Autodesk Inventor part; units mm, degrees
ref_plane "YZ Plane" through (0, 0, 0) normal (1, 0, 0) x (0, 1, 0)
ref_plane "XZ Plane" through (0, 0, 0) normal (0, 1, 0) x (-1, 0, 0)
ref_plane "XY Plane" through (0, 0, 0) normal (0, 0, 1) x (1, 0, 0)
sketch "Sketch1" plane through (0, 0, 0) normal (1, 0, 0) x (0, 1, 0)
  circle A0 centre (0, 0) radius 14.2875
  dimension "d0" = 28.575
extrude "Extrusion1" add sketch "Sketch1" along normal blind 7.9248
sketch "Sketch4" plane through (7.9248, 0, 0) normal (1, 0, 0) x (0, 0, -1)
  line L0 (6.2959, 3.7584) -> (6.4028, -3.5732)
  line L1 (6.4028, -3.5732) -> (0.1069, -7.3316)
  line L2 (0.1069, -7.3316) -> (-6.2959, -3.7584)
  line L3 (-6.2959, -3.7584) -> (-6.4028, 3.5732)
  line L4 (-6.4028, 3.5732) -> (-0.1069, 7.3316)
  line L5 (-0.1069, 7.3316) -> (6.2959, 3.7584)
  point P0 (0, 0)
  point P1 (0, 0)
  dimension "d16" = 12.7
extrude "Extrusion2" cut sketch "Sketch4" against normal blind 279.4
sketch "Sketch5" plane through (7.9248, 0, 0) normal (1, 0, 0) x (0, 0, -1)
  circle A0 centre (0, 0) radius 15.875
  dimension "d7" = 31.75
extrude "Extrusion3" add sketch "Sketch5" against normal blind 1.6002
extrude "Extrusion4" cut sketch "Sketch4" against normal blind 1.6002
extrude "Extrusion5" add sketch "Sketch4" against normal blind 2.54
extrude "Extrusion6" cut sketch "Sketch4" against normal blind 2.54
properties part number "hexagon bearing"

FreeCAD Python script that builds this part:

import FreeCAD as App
import Part
import Sketcher

V = App.Vector
Q = App.Units.Quantity


def add_polygon(sketch, points):
    """Adds a closed chain of lines whose ends are joined by coincident constraints."""
    first, n = sketch.GeometryCount, len(points)
    for a, b in zip(points, points[1:] + points[:1]):
        sketch.addGeometry(Part.LineSegment(App.Vector(*a, 0), App.Vector(*b, 0)), False)
    for i in range(n):
        sketch.addConstraint(Sketcher.Constraint("Coincident", first + i, 2, first + (i + 1) % n, 1))

doc = App.newDocument("Part")
body = doc.addObject("PartDesign::Body", "Body")

sketch1 = body.newObject("Sketcher::SketchObject", "Sketch")
sketch1.AttachmentSupport = (doc.getObject("YZ_Plane"), [""])
sketch1.MapMode = "FlatFace"
sketch1.addGeometry(Part.Circle(V(0, 0, 0), V(0, 0, 1), 14.2875), False)
sketch1.addConstraint([
    Sketcher.Constraint("Coincident", 0, 3, -1, 1),
    Sketcher.Constraint("Diameter", 0, Q("1.125 in")),
])
pad1 = body.newObject("PartDesign::Pad", "Pad")
pad1.Profile = sketch1
pad1.Length = Q("0.312 in")

sketch2 = body.newObject("Sketcher::SketchObject", "Sketch001")
sketch2.AttachmentSupport = (doc.getObject("YZ_Plane"), [""])
sketch2.MapMode = "FlatFace"
sketch2.AttachmentOffset = App.Placement(V(0, 0, 0.312 * 25.4), App.Rotation())
add_polygon(sketch2, [(-3.5732, -6.4028), (3.7584, -6.2959), (7.3316, 0.1069), (3.5732, 6.4028), (-3.7584, 6.2959), (-7.3316, -0.1069)])
sketch2.addConstraint([
    Sketcher.Constraint("DistanceY", -1, 1, 1, 2, Q("0.0042 in")),
    Sketcher.Constraint("DistanceY", 4, 2, -1, 1, Q("0.0042 in")),
    Sketcher.Constraint("DistanceX", 2, 2, 0, 2, Q("0.0073 in")),
    Sketcher.Constraint("DistanceY", 3, 2, 2, 2, Q("0.0042 in")),
    Sketcher.Constraint("DistanceX", 4, 2, 1, 2, Q("0.5773 in")),
    Sketcher.Constraint("DistanceY", 5, 2, 0, 2, Q("0.0042 in")),
    Sketcher.Constraint("DistanceX", 3, 2, 5, 2, Q("0.0073 in")),
    Sketcher.Constraint("Distance", 0, Q("7.3324 mm")),
    Sketcher.Constraint("Distance", 1, Q("7.3324 mm")),
    Sketcher.Constraint("Distance", 2, Q("7.3324 mm")),
    Sketcher.Constraint("Distance", 4, Q("7.3324 mm")),
    Sketcher.Constraint("DistanceX", -1, 1, 0, 2, Q("3.7584 mm")),
])
pocket1 = body.newObject("PartDesign::Pocket", "Pocket")
pocket1.Profile = sketch2
pocket1.Length = Q("11 in")

sketch3 = body.newObject("Sketcher::SketchObject", "Sketch002")
sketch3.AttachmentSupport = (doc.getObject("YZ_Plane"), [""])
sketch3.MapMode = "FlatFace"
sketch3.AttachmentOffset = App.Placement(V(0, 0, 0.312 * 25.4), App.Rotation())
sketch3.addGeometry(Part.Circle(V(0, 0, 0), V(0, 0, 1), 15.875), False)
sketch3.addConstraint([
    Sketcher.Constraint("Coincident", 0, 3, -1, 1),
    Sketcher.Constraint("Diameter", 0, Q("1.25 in")),
])
pad2 = body.newObject("PartDesign::Pad", "Pad001")
pad2.Profile = sketch3
pad2.Length = Q("0.063 in")
pad2.Reversed = True

sketch4 = body.newObject("Sketcher::SketchObject", "Sketch003")
sketch4.AttachmentSupport = (doc.getObject("YZ_Plane"), [""])
sketch4.MapMode = "FlatFace"
sketch4.AttachmentOffset = App.Placement(V(0, 0, 0.312 * 25.4), App.Rotation())
add_polygon(sketch4, [(-3.5732, -6.4028), (3.7584, -6.2959), (7.3316, 0.1069), (3.5732, 6.4028), (-3.7584, 6.2959), (-7.3316, -0.1069)])
sketch4.addConstraint([
    Sketcher.Constraint("DistanceY", -1, 1, 1, 2, Q("0.0042 in")),
    Sketcher.Constraint("DistanceY", 4, 2, -1, 1, Q("0.0042 in")),
    Sketcher.Constraint("DistanceX", 2, 2, 0, 2, Q("0.0073 in")),
    Sketcher.Constraint("DistanceY", 3, 2, 2, 2, Q("0.0042 in")),
    Sketcher.Constraint("DistanceX", 4, 2, 1, 2, Q("0.5773 in")),
    Sketcher.Constraint("DistanceY", 5, 2, 0, 2, Q("0.0042 in")),
    Sketcher.Constraint("DistanceX", 3, 2, 5, 2, Q("0.0073 in")),
    Sketcher.Constraint("Distance", 0, Q("7.3324 mm")),
    Sketcher.Constraint("Distance", 1, Q("7.3324 mm")),
    Sketcher.Constraint("Distance", 2, Q("7.3324 mm")),
    Sketcher.Constraint("Distance", 4, Q("7.3324 mm")),
    Sketcher.Constraint("DistanceX", -1, 1, 0, 2, Q("3.7584 mm")),
])
pocket2 = body.newObject("PartDesign::Pocket", "Pocket001")
pocket2.Profile = sketch4
pocket2.Length = Q("0.063 in")

sketch5 = body.newObject("Sketcher::SketchObject", "Sketch004")
sketch5.AttachmentSupport = (doc.getObject("YZ_Plane"), [""])
sketch5.MapMode = "FlatFace"
sketch5.AttachmentOffset = App.Placement(V(0, 0, 0.312 * 25.4), App.Rotation())
add_polygon(sketch5, [(-3.5732, -6.4028), (3.7584, -6.2959), (7.3316, 0.1069), (3.5732, 6.4028), (-3.7584, 6.2959), (-7.3316, -0.1069)])
sketch5.addConstraint([
    Sketcher.Constraint("DistanceY", -1, 1, 1, 2, Q("0.0042 in")),
    Sketcher.Constraint("DistanceY", 4, 2, -1, 1, Q("0.0042 in")),
    Sketcher.Constraint("DistanceX", 2, 2, 0, 2, Q("0.0073 in")),
    Sketcher.Constraint("DistanceY", 3, 2, 2, 2, Q("0.0042 in")),
    Sketcher.Constraint("DistanceX", 4, 2, 1, 2, Q("0.5773 in")),
    Sketcher.Constraint("DistanceY", 5, 2, 0, 2, Q("0.0042 in")),
    Sketcher.Constraint("DistanceX", 3, 2, 5, 2, Q("0.0073 in")),
    Sketcher.Constraint("Distance", 0, Q("7.3324 mm")),
    Sketcher.Constraint("Distance", 1, Q("7.3324 mm")),
    Sketcher.Constraint("Distance", 2, Q("7.3324 mm")),
    Sketcher.Constraint("Distance", 4, Q("7.3324 mm")),
    Sketcher.Constraint("DistanceX", -1, 1, 0, 2, Q("3.7584 mm")),
])
pad3 = body.newObject("PartDesign::Pad", "Pad002")
pad3.Profile = sketch5
pad3.Length = Q("0.1 in")
pad3.Reversed = True

sketch6 = body.newObject("Sketcher::SketchObject", "Sketch005")
sketch6.AttachmentSupport = (doc.getObject("YZ_Plane"), [""])
sketch6.MapMode = "FlatFace"
sketch6.AttachmentOffset = App.Placement(V(0, 0, 0.312 * 25.4), App.Rotation())
add_polygon(sketch6, [(-3.5732, -6.4028), (3.7584, -6.2959), (7.3316, 0.1069), (3.5732, 6.4028), (-3.7584, 6.2959), (-7.3316, -0.1069)])
sketch6.addConstraint([
    Sketcher.Constraint("DistanceY", -1, 1, 1, 2, Q("0.0042 in")),
    Sketcher.Constraint("DistanceY", 4, 2, -1, 1, Q("0.0042 in")),
    Sketcher.Constraint("DistanceX", 2, 2, 0, 2, Q("0.0073 in")),
    Sketcher.Constraint("DistanceY", 3, 2, 2, 2, Q("0.0042 in")),
    Sketcher.Constraint("DistanceX", 4, 2, 1, 2, Q("0.5773 in")),
    Sketcher.Constraint("DistanceY", 5, 2, 0, 2, Q("0.0042 in")),
    Sketcher.Constraint("DistanceX", 3, 2, 5, 2, Q("0.0073 in")),
    Sketcher.Constraint("Distance", 0, Q("7.3324 mm")),
    Sketcher.Constraint("Distance", 1, Q("7.3324 mm")),
    Sketcher.Constraint("Distance", 2, Q("7.3324 mm")),
    Sketcher.Constraint("Distance", 4, Q("7.3324 mm")),
    Sketcher.Constraint("DistanceX", -1, 1, 0, 2, Q("3.7584 mm")),
])
pocket3 = body.newObject("PartDesign::Pocket", "Pocket002")
pocket3.Profile = sketch6
pocket3.Length = Q("0.1 in")

doc.recompute()
